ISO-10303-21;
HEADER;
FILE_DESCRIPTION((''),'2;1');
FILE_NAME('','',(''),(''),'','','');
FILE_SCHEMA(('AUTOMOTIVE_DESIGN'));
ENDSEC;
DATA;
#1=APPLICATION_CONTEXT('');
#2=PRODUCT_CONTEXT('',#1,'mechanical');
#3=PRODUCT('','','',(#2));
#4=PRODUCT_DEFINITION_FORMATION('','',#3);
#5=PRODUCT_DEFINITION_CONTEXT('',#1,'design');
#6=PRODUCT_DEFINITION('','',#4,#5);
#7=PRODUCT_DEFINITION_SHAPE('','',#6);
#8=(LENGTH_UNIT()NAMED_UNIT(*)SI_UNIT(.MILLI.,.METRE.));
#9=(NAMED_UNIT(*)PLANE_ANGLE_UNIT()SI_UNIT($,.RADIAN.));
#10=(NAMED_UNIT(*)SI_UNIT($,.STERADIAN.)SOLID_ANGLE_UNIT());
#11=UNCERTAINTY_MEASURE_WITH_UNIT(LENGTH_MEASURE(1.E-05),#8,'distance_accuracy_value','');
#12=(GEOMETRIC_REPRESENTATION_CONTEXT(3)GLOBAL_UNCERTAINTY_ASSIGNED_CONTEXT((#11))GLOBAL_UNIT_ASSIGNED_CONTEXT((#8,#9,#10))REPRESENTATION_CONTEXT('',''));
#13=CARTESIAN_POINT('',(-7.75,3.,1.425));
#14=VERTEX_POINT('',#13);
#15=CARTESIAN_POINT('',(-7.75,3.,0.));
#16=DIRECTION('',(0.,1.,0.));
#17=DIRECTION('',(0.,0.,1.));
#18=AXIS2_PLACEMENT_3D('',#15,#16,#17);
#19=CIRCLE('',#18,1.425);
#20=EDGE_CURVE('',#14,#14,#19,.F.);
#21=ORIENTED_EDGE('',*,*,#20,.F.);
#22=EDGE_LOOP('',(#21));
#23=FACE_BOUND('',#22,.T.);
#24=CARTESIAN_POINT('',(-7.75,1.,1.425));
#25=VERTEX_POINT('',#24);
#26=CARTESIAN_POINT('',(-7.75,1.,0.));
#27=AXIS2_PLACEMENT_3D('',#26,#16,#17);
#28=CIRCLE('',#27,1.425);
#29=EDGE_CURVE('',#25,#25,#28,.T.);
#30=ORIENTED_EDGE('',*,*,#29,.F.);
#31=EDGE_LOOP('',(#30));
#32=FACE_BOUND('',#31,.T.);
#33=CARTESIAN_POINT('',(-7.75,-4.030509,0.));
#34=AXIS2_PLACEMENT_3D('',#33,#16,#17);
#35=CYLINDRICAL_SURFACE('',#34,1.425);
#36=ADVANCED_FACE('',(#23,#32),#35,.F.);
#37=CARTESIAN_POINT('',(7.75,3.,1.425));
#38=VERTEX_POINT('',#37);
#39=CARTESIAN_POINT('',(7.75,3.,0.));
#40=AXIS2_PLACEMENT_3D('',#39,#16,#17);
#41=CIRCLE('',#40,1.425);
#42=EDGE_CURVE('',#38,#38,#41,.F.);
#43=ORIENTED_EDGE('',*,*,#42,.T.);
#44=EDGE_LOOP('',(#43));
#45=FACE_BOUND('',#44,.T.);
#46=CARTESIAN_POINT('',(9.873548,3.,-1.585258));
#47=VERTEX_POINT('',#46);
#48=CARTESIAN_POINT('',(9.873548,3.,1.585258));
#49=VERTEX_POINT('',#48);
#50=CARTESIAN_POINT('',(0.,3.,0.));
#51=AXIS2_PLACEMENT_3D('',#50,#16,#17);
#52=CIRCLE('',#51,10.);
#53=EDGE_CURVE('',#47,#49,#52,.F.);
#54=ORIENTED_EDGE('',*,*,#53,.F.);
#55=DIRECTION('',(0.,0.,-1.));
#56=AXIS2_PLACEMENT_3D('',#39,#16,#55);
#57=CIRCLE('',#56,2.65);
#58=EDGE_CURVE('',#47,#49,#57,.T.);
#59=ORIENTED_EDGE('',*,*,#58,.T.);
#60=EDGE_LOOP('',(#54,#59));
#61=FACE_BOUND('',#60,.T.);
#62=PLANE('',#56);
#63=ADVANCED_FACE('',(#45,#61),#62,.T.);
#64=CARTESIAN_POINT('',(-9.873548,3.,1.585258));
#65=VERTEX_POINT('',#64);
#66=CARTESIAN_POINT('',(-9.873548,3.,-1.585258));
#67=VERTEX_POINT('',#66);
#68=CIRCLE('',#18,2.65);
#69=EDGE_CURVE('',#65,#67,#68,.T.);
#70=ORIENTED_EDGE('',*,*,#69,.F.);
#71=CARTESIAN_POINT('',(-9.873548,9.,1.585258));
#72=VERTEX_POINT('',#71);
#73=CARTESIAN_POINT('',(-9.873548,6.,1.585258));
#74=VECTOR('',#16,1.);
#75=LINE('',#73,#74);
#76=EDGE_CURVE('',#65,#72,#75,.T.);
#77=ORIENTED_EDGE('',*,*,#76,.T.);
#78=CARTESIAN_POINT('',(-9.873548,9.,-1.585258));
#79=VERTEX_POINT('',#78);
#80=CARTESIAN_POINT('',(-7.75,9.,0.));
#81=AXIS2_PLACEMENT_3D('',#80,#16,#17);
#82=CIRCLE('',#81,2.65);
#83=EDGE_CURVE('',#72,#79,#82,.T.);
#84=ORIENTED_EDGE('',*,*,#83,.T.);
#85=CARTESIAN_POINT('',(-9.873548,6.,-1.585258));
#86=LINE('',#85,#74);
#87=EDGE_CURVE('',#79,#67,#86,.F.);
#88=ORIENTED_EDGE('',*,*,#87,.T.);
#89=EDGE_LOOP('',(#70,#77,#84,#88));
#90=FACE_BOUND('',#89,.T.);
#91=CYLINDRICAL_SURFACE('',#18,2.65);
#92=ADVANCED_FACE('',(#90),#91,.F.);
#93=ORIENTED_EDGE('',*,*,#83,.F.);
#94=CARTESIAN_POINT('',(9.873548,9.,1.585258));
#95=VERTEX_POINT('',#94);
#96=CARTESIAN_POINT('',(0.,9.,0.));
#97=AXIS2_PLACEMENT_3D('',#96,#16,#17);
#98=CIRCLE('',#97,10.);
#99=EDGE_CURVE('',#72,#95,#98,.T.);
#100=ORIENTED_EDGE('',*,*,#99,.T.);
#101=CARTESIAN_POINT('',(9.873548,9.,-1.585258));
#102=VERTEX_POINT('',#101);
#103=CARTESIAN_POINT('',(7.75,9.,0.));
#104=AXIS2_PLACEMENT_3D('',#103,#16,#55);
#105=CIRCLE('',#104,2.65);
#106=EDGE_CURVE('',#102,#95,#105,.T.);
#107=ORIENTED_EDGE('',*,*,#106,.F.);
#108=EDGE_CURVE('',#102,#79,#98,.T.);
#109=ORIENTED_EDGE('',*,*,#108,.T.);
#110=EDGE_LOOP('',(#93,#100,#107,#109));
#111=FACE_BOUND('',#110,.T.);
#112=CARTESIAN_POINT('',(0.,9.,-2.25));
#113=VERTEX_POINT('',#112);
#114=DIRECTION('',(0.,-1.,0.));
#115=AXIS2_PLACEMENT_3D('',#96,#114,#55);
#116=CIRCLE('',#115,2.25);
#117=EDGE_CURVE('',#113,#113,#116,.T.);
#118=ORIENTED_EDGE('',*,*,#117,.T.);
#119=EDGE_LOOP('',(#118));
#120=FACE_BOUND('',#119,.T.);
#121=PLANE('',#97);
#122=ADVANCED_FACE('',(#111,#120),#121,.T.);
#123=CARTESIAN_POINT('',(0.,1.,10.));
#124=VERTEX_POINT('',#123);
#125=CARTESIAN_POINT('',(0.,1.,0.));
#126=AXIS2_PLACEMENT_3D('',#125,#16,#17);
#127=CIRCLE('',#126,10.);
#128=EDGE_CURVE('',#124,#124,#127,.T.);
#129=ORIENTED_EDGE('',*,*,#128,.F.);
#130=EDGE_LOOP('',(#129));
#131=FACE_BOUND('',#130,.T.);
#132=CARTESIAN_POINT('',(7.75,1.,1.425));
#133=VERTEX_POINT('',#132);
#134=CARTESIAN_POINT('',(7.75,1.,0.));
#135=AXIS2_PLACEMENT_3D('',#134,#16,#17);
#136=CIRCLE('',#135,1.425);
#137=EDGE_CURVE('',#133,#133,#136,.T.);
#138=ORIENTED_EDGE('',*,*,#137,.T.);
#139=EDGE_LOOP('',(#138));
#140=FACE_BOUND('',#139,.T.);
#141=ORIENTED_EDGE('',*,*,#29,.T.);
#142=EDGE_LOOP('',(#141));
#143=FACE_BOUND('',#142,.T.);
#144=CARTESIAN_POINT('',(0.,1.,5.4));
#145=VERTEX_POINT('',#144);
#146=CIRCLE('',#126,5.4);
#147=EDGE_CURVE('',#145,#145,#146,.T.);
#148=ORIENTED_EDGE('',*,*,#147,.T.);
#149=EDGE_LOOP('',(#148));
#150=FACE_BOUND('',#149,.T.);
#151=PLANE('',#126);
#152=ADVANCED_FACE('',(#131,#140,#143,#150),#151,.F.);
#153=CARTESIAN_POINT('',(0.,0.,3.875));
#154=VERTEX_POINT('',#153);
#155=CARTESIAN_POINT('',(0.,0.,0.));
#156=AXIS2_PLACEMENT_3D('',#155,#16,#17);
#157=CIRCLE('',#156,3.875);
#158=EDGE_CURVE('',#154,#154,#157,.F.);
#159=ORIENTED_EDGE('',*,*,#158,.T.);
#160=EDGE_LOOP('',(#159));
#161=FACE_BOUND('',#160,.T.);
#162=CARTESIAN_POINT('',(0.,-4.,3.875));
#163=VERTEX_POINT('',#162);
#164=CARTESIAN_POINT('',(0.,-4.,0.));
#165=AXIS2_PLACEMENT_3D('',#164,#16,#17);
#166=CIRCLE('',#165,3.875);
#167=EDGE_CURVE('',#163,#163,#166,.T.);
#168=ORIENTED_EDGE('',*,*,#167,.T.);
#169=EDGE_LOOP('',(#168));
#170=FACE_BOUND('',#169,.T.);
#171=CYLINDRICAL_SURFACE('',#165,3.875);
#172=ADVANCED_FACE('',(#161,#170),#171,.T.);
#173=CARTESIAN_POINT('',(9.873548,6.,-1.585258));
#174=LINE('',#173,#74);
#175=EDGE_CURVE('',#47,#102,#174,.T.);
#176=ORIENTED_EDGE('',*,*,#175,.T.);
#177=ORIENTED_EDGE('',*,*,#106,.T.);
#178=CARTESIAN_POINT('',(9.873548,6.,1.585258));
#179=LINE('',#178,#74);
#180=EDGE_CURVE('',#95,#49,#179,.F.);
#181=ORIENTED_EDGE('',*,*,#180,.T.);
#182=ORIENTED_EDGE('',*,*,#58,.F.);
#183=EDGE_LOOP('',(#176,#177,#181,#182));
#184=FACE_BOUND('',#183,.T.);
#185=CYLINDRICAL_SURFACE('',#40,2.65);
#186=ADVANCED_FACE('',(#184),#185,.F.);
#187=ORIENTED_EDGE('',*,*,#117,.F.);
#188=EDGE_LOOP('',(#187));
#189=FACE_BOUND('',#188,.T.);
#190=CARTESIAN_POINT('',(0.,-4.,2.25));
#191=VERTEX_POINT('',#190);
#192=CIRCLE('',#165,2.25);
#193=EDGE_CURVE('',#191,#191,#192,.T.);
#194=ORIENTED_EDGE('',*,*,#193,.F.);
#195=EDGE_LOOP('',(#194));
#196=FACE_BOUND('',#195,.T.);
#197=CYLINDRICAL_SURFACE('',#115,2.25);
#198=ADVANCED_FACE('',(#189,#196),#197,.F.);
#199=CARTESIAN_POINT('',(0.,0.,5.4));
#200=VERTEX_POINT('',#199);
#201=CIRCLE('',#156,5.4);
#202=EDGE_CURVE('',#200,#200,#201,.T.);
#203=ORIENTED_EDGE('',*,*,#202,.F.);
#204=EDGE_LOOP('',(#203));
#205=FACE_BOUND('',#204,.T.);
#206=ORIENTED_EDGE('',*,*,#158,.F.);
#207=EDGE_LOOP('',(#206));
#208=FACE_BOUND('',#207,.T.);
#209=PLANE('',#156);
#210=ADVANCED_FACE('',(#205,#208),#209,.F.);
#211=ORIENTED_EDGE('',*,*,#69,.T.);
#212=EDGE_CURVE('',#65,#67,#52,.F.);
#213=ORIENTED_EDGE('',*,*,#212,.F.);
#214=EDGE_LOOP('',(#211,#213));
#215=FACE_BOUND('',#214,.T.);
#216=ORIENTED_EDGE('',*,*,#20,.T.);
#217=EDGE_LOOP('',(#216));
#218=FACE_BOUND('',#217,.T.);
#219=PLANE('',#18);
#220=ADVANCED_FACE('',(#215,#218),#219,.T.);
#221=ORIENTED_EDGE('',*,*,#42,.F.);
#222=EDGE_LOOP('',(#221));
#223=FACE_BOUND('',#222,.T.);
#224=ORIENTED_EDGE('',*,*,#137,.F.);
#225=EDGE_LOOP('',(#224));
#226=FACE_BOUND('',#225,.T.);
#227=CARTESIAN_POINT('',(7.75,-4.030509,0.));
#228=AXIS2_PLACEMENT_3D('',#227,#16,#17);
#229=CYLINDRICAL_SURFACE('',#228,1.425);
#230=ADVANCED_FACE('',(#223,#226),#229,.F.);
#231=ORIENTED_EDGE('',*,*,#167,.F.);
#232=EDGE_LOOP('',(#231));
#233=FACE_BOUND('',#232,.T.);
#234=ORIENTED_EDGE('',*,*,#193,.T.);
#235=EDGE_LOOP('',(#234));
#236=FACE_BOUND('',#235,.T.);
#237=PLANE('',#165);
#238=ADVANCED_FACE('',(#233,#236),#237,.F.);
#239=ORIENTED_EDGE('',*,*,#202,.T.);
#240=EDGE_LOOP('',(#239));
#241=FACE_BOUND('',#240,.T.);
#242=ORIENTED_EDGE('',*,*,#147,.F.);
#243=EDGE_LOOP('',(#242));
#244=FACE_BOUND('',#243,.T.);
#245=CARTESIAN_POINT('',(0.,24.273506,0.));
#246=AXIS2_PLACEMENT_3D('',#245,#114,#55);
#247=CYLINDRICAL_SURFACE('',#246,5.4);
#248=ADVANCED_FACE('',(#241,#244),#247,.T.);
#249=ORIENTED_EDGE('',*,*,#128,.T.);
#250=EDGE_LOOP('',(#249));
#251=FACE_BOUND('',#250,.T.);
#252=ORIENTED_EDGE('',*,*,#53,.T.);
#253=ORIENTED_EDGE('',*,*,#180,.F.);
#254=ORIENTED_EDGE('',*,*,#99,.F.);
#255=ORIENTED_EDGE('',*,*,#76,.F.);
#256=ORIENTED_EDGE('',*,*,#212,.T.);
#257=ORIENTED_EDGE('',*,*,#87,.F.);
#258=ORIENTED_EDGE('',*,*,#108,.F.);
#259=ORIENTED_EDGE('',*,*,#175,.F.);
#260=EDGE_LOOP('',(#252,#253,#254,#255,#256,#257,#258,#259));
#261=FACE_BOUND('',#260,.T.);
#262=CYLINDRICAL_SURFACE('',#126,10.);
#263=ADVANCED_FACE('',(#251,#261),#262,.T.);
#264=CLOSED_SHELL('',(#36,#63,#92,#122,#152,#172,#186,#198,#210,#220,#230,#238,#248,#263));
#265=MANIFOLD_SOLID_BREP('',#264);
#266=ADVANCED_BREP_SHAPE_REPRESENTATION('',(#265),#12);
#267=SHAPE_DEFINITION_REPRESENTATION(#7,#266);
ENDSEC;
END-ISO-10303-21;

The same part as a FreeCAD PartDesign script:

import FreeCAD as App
import Part
import Sketcher

doc = App.newDocument("Part")
body = doc.addObject("PartDesign::Body", "Body")

# Sketch on XZ plane
sketch1 = doc.addObject("Sketcher::SketchObject", "Sketch")
body.addObject(sketch1)
sketch1.AttachmentSupport = (doc.XZ_Plane, [""])
sketch1.MapMode = "FlatFace"
sketch1.addGeometry(Part.Circle(App.Vector(0, 0, 0), App.Vector(0, 0, 1), 3.9), False)
sketch1.addConstraint([
    Sketcher.Constraint("Coincident", 0, 3, -1, 1),
    Sketcher.Constraint("Diameter", 0, 7.75),
])
pad1 = doc.addObject("PartDesign::Pad", "Pad")
body.addObject(pad1)
pad1.Profile = sketch1
pad1.Type = "TwoLengths"
pad1.Length = 9
pad1.Length2 = 4
pad1.Reversed = True

# Sketch on XZ plane
sketch2 = doc.addObject("Sketcher::SketchObject", "Sketch001")
body.addObject(sketch2)
sketch2.AttachmentSupport = (doc.XZ_Plane, [""])
sketch2.MapMode = "FlatFace"
sketch2.addGeometry(Part.Circle(App.Vector(0, 0, 0), App.Vector(0, 0, 1), 5), False)
sketch2.addConstraint([
    Sketcher.Constraint("Coincident", 0, 3, -1, 1),
    Sketcher.Constraint("Diameter", 0, 10.8),
])
pad2 = doc.addObject("PartDesign::Pad", "Pad001")
body.addObject(pad2)
pad2.Profile = sketch2
pad2.Length = 9
pad2.Reversed = True

# Sketch on XZ plane
sketch3 = doc.addObject("Sketcher::SketchObject", "Sketch002")
body.addObject(sketch3)
sketch3.AttachmentSupport = (doc.XZ_Plane, [""])
sketch3.MapMode = "FlatFace"
sketch3.AttachmentOffset = App.Placement(App.Vector(0, 0, -9), App.Rotation())
sketch3.addGeometry(Part.Circle(App.Vector(0, 0, 0), App.Vector(0, 0, 1), 10), False)
sketch3.addConstraint([
    Sketcher.Constraint("Coincident", 0, 3, -1, 1),
    Sketcher.Constraint("Diameter", 0, 20.0),
])
pad3 = doc.addObject("PartDesign::Pad", "Pad002")
body.addObject(pad3)
pad3.Profile = sketch3
pad3.Length = 8

# Sketch on XZ plane
sketch4 = doc.addObject("Sketcher::SketchObject", "Sketch003")
body.addObject(sketch4)
sketch4.AttachmentSupport = (doc.XZ_Plane, [""])
sketch4.MapMode = "FlatFace"
sketch4.addGeometry(Part.Circle(App.Vector(-7.8, 0, 0), App.Vector(0, 0, 1), 1.4), False)
sketch4.addConstraint([
    Sketcher.Constraint("PointOnObject", 0, 3, -1),
    Sketcher.Constraint("Diameter", 0, 2.85),
    Sketcher.Constraint("DistanceX", 0, 3, -1, 1, 7.75),
])
pocket1 = doc.addObject("PartDesign::Pocket", "Pocket")
body.addObject(pocket1)
pocket1.Profile = sketch4
pocket1.Length = 10

# Sketch on XZ plane
sketch5 = doc.addObject("Sketcher::SketchObject", "Sketch004")
body.addObject(sketch5)
sketch5.AttachmentSupport = (doc.XZ_Plane, [""])
sketch5.MapMode = "FlatFace"
sketch5.AttachmentOffset = App.Placement(App.Vector(0, 0, -9), App.Rotation())
sketch5.addGeometry(Part.Circle(App.Vector(-7.8, 0, 0), App.Vector(0, 0, 1), 2.6), False)
sketch5.addConstraint([
    Sketcher.Constraint("PointOnObject", 0, 3, -1),
    Sketcher.Constraint("Diameter", 0, 5.3),
    Sketcher.Constraint("DistanceX", 0, 3, -1, 1, 7.75),
])
pocket2 = doc.addObject("PartDesign::Pocket", "Pocket001")
body.addObject(pocket2)
pocket2.Profile = sketch5
pocket2.Length = 6
pocket2.Reversed = True
doc.recompute()

polarpattern = doc.addObject("PartDesign::PolarPattern", "PolarPattern")
body.addObject(polarpattern)
polarpattern.Originals = [pocket1, pocket2]
polarpattern.Axis = (doc.Y_Axis, [""])
polarpattern.Angle = 360
polarpattern.Occurrences = 2
body.Tip = polarpattern

# Sketch on XZ plane
sketch6 = doc.addObject("Sketcher::SketchObject", "Sketch005")
body.addObject(sketch6)
sketch6.AttachmentSupport = (doc.XZ_Plane, [""])
sketch6.MapMode = "FlatFace"
sketch6.AttachmentOffset = App.Placement(App.Vector(0, 0, 4), App.Rotation())
sketch6.addGeometry(Part.Circle(App.Vector(0, 0, 0), App.Vector(0, 0, 1), 2.2), False)
sketch6.addConstraint([
    Sketcher.Constraint("Coincident", 0, 3, -1, 1),
    Sketcher.Constraint("Diameter", 0, 4.5),
])
pocket3 = doc.addObject("PartDesign::Pocket", "Pocket002")
body.addObject(pocket3)
pocket3.Profile = sketch6
pocket3.Type = "ThroughAll"
pocket3.Midplane = True

doc.recompute()
